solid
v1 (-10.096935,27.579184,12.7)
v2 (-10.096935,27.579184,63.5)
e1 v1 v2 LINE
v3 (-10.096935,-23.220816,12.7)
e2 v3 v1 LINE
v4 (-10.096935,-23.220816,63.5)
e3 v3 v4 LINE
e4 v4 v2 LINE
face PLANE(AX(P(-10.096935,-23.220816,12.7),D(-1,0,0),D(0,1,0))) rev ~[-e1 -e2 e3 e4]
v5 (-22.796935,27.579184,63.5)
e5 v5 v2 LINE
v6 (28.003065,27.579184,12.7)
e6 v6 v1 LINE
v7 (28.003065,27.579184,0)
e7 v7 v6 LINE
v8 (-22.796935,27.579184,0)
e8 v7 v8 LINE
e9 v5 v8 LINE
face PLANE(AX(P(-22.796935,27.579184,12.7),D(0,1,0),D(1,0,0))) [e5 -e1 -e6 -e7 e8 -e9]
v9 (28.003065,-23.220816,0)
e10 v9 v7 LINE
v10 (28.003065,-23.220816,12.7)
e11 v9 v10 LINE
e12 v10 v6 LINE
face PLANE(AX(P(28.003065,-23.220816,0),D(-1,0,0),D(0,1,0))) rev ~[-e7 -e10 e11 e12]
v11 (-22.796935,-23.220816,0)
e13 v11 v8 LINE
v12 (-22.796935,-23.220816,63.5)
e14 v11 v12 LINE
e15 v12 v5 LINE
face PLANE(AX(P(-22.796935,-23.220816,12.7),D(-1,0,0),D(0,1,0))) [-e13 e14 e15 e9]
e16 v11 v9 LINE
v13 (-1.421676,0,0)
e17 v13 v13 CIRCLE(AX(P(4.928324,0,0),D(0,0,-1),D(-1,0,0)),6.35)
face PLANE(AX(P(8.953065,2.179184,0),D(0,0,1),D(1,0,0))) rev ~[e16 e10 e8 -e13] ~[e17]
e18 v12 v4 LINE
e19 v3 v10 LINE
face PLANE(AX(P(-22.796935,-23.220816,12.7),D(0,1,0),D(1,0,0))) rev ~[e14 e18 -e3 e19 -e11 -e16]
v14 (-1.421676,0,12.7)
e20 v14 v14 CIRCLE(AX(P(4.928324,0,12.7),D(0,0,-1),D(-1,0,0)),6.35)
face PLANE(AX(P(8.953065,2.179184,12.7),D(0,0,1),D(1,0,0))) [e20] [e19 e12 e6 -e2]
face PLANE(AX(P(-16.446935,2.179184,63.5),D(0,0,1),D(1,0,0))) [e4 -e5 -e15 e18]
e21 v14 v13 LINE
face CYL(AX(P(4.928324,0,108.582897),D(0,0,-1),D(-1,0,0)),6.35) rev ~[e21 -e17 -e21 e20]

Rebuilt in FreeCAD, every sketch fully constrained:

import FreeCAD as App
import Part
import Sketcher
Q = App.Units.Quantity


def add_polygon(sketch, points):
    """Adds a closed chain of lines whose ends are joined by coincident constraints."""
    first, n = sketch.GeometryCount, len(points)
    for a, b in zip(points, points[1:] + points[:1]):
        sketch.addGeometry(Part.LineSegment(App.Vector(*a, 0), App.Vector(*b, 0)), False)
    for i in range(n):
        sketch.addConstraint(Sketcher.Constraint("Coincident", first + i, 2, first + (i + 1) % n, 1))

doc = App.newDocument("Part")
body = doc.addObject("PartDesign::Body", "Body")

# Sketch on XY plane
sketch1 = doc.addObject("Sketcher::SketchObject", "Sketch")
body.addObject(sketch1)
sketch1.AttachmentSupport = (doc.XY_Plane, [""])
sketch1.MapMode = "FlatFace"
add_polygon(sketch1, [(28.003065, -23.220816), (28.003065, 27.579184), (-22.796935, 27.579184), (-22.796935, -23.220816)])  # lines 0-3
sketch1.addConstraint([
    Sketcher.Constraint("Vertical", 0),
    Sketcher.Constraint("Horizontal", 1),
    Sketcher.Constraint("Vertical", 2),
    Sketcher.Constraint("Horizontal", 3),
    Sketcher.Constraint("Equal", 3, 0),
    Sketcher.Constraint("DistanceX", 1, 2, 1, 1, Q("2 in")),
    Sketcher.Constraint("DistanceX", -1, 1, 0, 2, Q("28.003065 mm")),
    Sketcher.Constraint("DistanceY", -1, 1, 0, 2, Q("27.579184 mm")),
])
pad1 = doc.addObject("PartDesign::Pad", "Pad")
body.addObject(pad1)
pad1.Profile = sketch1
pad1.Length = Q("0.5 in")

# Sketch on XY plane
sketch2 = doc.addObject("Sketcher::SketchObject", "Sketch001")
body.addObject(sketch2)
sketch2.AttachmentSupport = (doc.XY_Plane, [""])
sketch2.MapMode = "FlatFace"
sketch2.AttachmentOffset = App.Placement(App.Vector(0, 0, 0.5 * 25.4), App.Rotation())
add_polygon(sketch2, [(-22.796935, 27.579184), (-22.796935, -23.220816), (-10.096935, -23.220816), (-10.096935, 27.579184)])  # lines 0-3
sketch2.addConstraint([
    Sketcher.Constraint("Vertical", 0),
    Sketcher.Constraint("Horizontal", 1),
    Sketcher.Constraint("Vertical", 2),
    Sketcher.Constraint("Horizontal", 3),
    Sketcher.Constraint("DistanceY", 0, 2, 0, 1, Q("2 in")),
    Sketcher.Constraint("DistanceX", 1, 1, 1, 2, Q("0.5 in")),
    Sketcher.Constraint("DistanceX", 0, 2, -1, 1, Q("22.796935 mm")),
    Sketcher.Constraint("DistanceY", 0, 2, -1, 1, Q("23.220816 mm")),
])
pad2 = doc.addObject("PartDesign::Pad", "Pad001")
body.addObject(pad2)
pad2.Profile = sketch2
pad2.Length = Q("2 in")

# Sketch on XY plane
sketch3 = doc.addObject("Sketcher::SketchObject", "Sketch002")
body.addObject(sketch3)
sketch3.AttachmentSupport = (doc.XY_Plane, [""])
sketch3.MapMode = "FlatFace"
sketch3.AttachmentOffset = App.Placement(App.Vector(0, 0, 0.5 * 25.4), App.Rotation())
sketch3.addGeometry(Part.Circle(App.Vector(4.928324, 0, 0), App.Vector(0, 0, 1), 6.35), False)
sketch3.addConstraint([
    Sketcher.Constraint("PointOnObject", 0, 3, -1),
    Sketcher.Constraint("Diameter", 0, Q("0.5 in")),
    Sketcher.Constraint("DistanceX", -1, 1, 0, 3, Q("4.928324 mm")),
])
doc.recompute()
hole = doc.addObject("PartDesign::Hole", "Hole")
body.addObject(hole)
hole.Profile = sketch3
hole.ThreadType = "None"
hole.Diameter = Q("0.5 in")
hole.DepthType = "ThroughAll"

doc.recompute()
